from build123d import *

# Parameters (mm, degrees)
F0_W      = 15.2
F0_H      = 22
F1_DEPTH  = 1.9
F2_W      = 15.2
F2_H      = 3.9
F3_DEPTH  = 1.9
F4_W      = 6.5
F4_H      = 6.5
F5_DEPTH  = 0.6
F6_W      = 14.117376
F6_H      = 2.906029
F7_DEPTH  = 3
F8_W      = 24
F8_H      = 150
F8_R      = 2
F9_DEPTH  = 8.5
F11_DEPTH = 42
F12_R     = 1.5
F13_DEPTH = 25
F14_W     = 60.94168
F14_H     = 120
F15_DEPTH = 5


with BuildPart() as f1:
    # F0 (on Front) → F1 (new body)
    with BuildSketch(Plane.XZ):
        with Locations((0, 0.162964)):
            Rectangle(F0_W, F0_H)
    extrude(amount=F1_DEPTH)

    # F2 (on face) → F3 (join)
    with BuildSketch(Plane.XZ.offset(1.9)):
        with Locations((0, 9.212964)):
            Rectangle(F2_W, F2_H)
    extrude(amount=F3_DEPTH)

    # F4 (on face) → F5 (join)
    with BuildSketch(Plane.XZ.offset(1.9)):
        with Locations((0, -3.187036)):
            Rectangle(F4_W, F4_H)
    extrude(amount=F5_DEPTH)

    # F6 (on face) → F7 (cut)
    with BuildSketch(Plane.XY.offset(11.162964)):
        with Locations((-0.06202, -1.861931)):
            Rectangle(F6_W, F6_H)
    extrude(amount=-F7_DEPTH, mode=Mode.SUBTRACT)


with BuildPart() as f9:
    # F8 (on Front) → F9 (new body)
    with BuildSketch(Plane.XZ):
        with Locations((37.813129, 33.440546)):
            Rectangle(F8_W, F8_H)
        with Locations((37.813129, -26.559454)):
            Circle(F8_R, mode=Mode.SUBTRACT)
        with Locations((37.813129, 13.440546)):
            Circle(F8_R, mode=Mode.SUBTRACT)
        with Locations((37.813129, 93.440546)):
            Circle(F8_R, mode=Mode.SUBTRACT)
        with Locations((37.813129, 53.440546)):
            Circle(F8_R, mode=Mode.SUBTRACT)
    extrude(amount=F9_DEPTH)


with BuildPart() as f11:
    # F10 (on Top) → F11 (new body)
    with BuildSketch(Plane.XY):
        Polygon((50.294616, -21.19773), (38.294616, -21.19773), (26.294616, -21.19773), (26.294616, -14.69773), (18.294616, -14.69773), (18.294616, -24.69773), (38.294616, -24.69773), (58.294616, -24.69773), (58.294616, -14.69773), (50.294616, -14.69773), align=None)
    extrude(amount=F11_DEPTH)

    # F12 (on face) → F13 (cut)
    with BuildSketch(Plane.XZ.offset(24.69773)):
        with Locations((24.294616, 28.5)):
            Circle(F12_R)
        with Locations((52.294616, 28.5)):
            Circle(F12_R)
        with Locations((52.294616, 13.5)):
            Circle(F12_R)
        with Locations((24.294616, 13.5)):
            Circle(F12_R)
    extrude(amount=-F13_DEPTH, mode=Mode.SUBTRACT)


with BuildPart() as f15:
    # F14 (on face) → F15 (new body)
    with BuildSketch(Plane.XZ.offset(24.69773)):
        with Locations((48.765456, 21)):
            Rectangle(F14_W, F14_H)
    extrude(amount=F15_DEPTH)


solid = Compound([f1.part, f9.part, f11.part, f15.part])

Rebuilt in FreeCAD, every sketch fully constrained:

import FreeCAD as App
import Part
import Sketcher
from FreeCAD import Vector
Q = App.Units.Quantity

doc = App.newDocument("Part")
body = doc.addObject("PartDesign::Body", "Body")

sketch1 = body.newObject("Sketcher::SketchObject", "Sketch")
sketch1.AttachmentSupport = (doc.getObject("XZ_Plane"), [""])
sketch1.MapMode = "FlatFace"
sketch1.addGeometry(Part.LineSegment(Vector(-7.6, 11.162964, 0), Vector(-7.6, -10.837036, 0)), False)
sketch1.addGeometry(Part.LineSegment(Vector(-7.6, -10.837036, 0), Vector(7.6, -10.837036, 0)), False)
sketch1.addGeometry(Part.LineSegment(Vector(7.6, -10.837036, 0), Vector(7.6, 11.162964, 0)), False)
sketch1.addGeometry(Part.LineSegment(Vector(7.6, 11.162964, 0), Vector(-7.6, 11.162964, 0)), False)
sketch1.addConstraint(Sketcher.Constraint("Coincident", 0, 2, 1, 1))
sketch1.addConstraint(Sketcher.Constraint("Coincident", 1, 2, 2, 1))
sketch1.addConstraint(Sketcher.Constraint("Coincident", 2, 2, 3, 1))
sketch1.addConstraint(Sketcher.Constraint("Coincident", 3, 2, 0, 1))
sketch1.addConstraint(Sketcher.Constraint("Vertical", 0))
sketch1.addConstraint(Sketcher.Constraint("Horizontal", 1))
sketch1.addConstraint(Sketcher.Constraint("Vertical", 2))
sketch1.addConstraint(Sketcher.Constraint("Horizontal", 3))
sketch1.addConstraint(Sketcher.Constraint("DistanceY", 0, 2, 0, 1, Q("22 mm")))
sketch1.addConstraint(Sketcher.Constraint("DistanceX", 1, 1, 1, 2, Q("15.2 mm")))
sketch1.addConstraint(Sketcher.Constraint("DistanceX", 0, 2, -1, 1, Q("7.6 mm")))
sketch1.addConstraint(Sketcher.Constraint("DistanceY", 0, 2, -1, 1, Q("10.837036 mm")))
pad1 = body.newObject("PartDesign::Pad", "Pad")
pad1.Profile = sketch1
pad1.Length = 1.9

sketch2 = body.newObject("Sketcher::SketchObject", "Sketch001")
sketch2.AttachmentSupport = (doc.getObject("XZ_Plane"), [""])
sketch2.MapMode = "FlatFace"
sketch2.AttachmentOffset = App.Placement(Vector(0, 0, 1.9), App.Rotation())
sketch2.addGeometry(Part.LineSegment(Vector(-7.6, 11.162964, 0), Vector(-7.6, 7.262964, 0)), False)
sketch2.addGeometry(Part.LineSegment(Vector(-7.6, 7.262964, 0), Vector(7.6, 7.262964, 0)), False)
sketch2.addGeometry(Part.LineSegment(Vector(7.6, 7.262964, 0), Vector(7.6, 11.162964, 0)), False)
sketch2.addGeometry(Part.LineSegment(Vector(7.6, 11.162964, 0), Vector(-7.6, 11.162964, 0)), False)
sketch2.addConstraint(Sketcher.Constraint("Coincident", 0, 2, 1, 1))
sketch2.addConstraint(Sketcher.Constraint("Coincident", 1, 2, 2, 1))
sketch2.addConstraint(Sketcher.Constraint("Coincident", 2, 2, 3, 1))
sketch2.addConstraint(Sketcher.Constraint("Coincident", 3, 2, 0, 1))
sketch2.addConstraint(Sketcher.Constraint("Vertical", 0))
sketch2.addConstraint(Sketcher.Constraint("Horizontal", 1))
sketch2.addConstraint(Sketcher.Constraint("Vertical", 2))
sketch2.addConstraint(Sketcher.Constraint("Horizontal", 3))
sketch2.addConstraint(Sketcher.Constraint("DistanceX", 1, 1, 1, 2, Q("15.2 mm")))
sketch2.addConstraint(Sketcher.Constraint("DistanceY", 0, 2, 0, 1, Q("3.9 mm")))
sketch2.addConstraint(Sketcher.Constraint("DistanceX", 0, 2, -1, 1, Q("7.6 mm")))
sketch2.addConstraint(Sketcher.Constraint("DistanceY", -1, 1, 0, 2, Q("7.262964 mm")))
pad2 = body.newObject("PartDesign::Pad", "Pad001")
pad2.Profile = sketch2
pad2.Length = 1.9

sketch3 = body.newObject("Sketcher::SketchObject", "Sketch002")
sketch3.AttachmentSupport = (doc.getObject("XZ_Plane"), [""])
sketch3.MapMode = "FlatFace"
sketch3.AttachmentOffset = App.Placement(Vector(0, 0, 1.9), App.Rotation())
sketch3.addGeometry(Part.LineSegment(Vector(-3.25, 0.062964, 0), Vector(-3.25, -6.437036, 0)), False)
sketch3.addGeometry(Part.LineSegment(Vector(-3.25, -6.437036, 0), Vector(3.25, -6.437036, 0)), False)
sketch3.addGeometry(Part.LineSegment(Vector(3.25, -6.437036, 0), Vector(3.25, 0.062964, 0)), False)
sketch3.addGeometry(Part.LineSegment(Vector(3.25, 0.062964, 0), Vector(-3.25, 0.062964, 0)), False)
sketch3.addConstraint(Sketcher.Constraint("Coincident", 0, 2, 1, 1))
sketch3.addConstraint(Sketcher.Constraint("Coincident", 1, 2, 2, 1))
sketch3.addConstraint(Sketcher.Constraint("Coincident", 2, 2, 3, 1))
sketch3.addConstraint(Sketcher.Constraint("Coincident", 3, 2, 0, 1))
sketch3.addConstraint(Sketcher.Constraint("Vertical", 0))
sketch3.addConstraint(Sketcher.Constraint("Horizontal", 1))
sketch3.addConstraint(Sketcher.Constraint("Vertical", 2))
sketch3.addConstraint(Sketcher.Constraint("Horizontal", 3))
sketch3.addConstraint(Sketcher.Constraint("Equal", 3, 0))
sketch3.addConstraint(Sketcher.Constraint("DistanceX", 1, 1, 1, 2, Q("6.5 mm")))
sketch3.addConstraint(Sketcher.Constraint("DistanceX", 0, 2, -1, 1, Q("3.25 mm")))
sketch3.addConstraint(Sketcher.Constraint("DistanceY", 0, 2, -1, 1, Q("6.437036 mm")))
pad3 = body.newObject("PartDesign::Pad", "Pad002")
pad3.Profile = sketch3
pad3.Length = 0.6

sketch4 = body.newObject("Sketcher::SketchObject", "Sketch003")
sketch4.AttachmentSupport = (doc.getObject("XY_Plane"), [""])
sketch4.MapMode = "FlatFace"
sketch4.AttachmentOffset = App.Placement(Vector(0, 0, 11.162964), App.Rotation())
sketch4.addGeometry(Part.LineSegment(Vector(-7.120708, -0.408917, 0), Vector(-7.120708, -3.314945, 0)), False)
sketch4.addGeometry(Part.LineSegment(Vector(-7.120708, -3.314945, 0), Vector(6.996668, -3.314945, 0)), False)
sketch4.addGeometry(Part.LineSegment(Vector(6.996668, -3.314945, 0), Vector(6.996668, -0.408917, 0)), False)
sketch4.addGeometry(Part.LineSegment(Vector(6.996668, -0.408917, 0), Vector(-7.120708, -0.408917, 0)), False)
sketch4.addConstraint(Sketcher.Constraint("Coincident", 0, 2, 1, 1))
sketch4.addConstraint(Sketcher.Constraint("Coincident", 1, 2, 2, 1))
sketch4.addConstraint(Sketcher.Constraint("Coincident", 2, 2, 3, 1))
sketch4.addConstraint(Sketcher.Constraint("Coincident", 3, 2, 0, 1))
sketch4.addConstraint(Sketcher.Constraint("Vertical", 0))
sketch4.addConstraint(Sketcher.Constraint("Horizontal", 1))
sketch4.addConstraint(Sketcher.Constraint("Vertical", 2))
sketch4.addConstraint(Sketcher.Constraint("Horizontal", 3))
sketch4.addConstraint(Sketcher.Constraint("DistanceY", 0, 2, 0, 1, Q("2.906029 mm")))
sketch4.addConstraint(Sketcher.Constraint("DistanceX", 1, 1, 1, 2, Q("14.117376 mm")))
sketch4.addConstraint(Sketcher.Constraint("DistanceX", 0, 2, -1, 1, Q("7.120708 mm")))
sketch4.addConstraint(Sketcher.Constraint("DistanceY", 0, 2, -1, 1, Q("3.314945 mm")))
pocket1 = body.newObject("PartDesign::Pocket", "Pocket")
pocket1.Profile = sketch4
pocket1.Length = 3
body2 = doc.addObject("PartDesign::Body", "Body001")

sketch5 = body2.newObject("Sketcher::SketchObject", "Sketch004")
sketch5.AttachmentSupport = (doc.getObject("XZ_Plane001"), [""])
sketch5.MapMode = "FlatFace"
sketch5.addGeometry(Part.LineSegment(Vector(25.813129, 108.440546, 0), Vector(25.813129, -41.559454, 0)), False)
sketch5.addGeometry(Part.LineSegment(Vector(25.813129, -41.559454, 0), Vector(49.813129, -41.559454, 0)), False)
sketch5.addGeometry(Part.LineSegment(Vector(49.813129, -41.559454, 0), Vector(49.813129, 108.440546, 0)), False)
sketch5.addGeometry(Part.LineSegment(Vector(49.813129, 108.440546, 0), Vector(25.813129, 108.440546, 0)), False)
sketch5.addGeometry(Part.Circle(Vector(37.813129, -26.559454, 0), Vector(0, 0, 1), 2), False)
sketch5.addGeometry(Part.Circle(Vector(37.813129, 13.440546, 0), Vector(0, 0, 1), 2), False)
sketch5.addGeometry(Part.Circle(Vector(37.813129, 53.440546, 0), Vector(0, 0, 1), 2), False)
sketch5.addGeometry(Part.Circle(Vector(37.813129, 93.440546, 0), Vector(0, 0, 1), 2), False)
sketch5.addConstraint(Sketcher.Constraint("Coincident", 0, 2, 1, 1))
sketch5.addConstraint(Sketcher.Constraint("Coincident", 1, 2, 2, 1))
sketch5.addConstraint(Sketcher.Constraint("Coincident", 2, 2, 3, 1))
sketch5.addConstraint(Sketcher.Constraint("Coincident", 3, 2, 0, 1))
sketch5.addConstraint(Sketcher.Constraint("Vertical", 0))
sketch5.addConstraint(Sketcher.Constraint("Horizontal", 1))
sketch5.addConstraint(Sketcher.Constraint("Vertical", 2))
sketch5.addConstraint(Sketcher.Constraint("Horizontal", 3))
sketch5.addConstraint(Sketcher.Constraint("Equal", 4, 5))
sketch5.addConstraint(Sketcher.Constraint("Equal", 5, 6))
sketch5.addConstraint(Sketcher.Constraint("Equal", 6, 7))
sketch5.addConstraint(Sketcher.Constraint("Vertical", 4, 3, 5, 3))
sketch5.addConstraint(Sketcher.Constraint("Vertical", 5, 3, 6, 3))
sketch5.addConstraint(Sketcher.Constraint("Vertical", 6, 3, 7, 3))
sketch5.addConstraint(Sketcher.Constraint("Diameter", 4, Q("4 mm")))
sketch5.addConstraint(Sketcher.Constraint("DistanceX", 1, 1, 1, 2, Q("24 mm")))
sketch5.addConstraint(Sketcher.Constraint("DistanceY", 0, 2, 0, 1, Q("150 mm")))
sketch5.addConstraint(Sketcher.Constraint("DistanceY", 4, 3, 5, 3, Q("40 mm")))
sketch5.addConstraint(Sketcher.Constraint("DistanceY", 5, 3, 6, 3, Q("40 mm")))
sketch5.addConstraint(Sketcher.Constraint("DistanceY", 6, 3, 7, 3, Q("40 mm")))
sketch5.addConstraint(Sketcher.Constraint("DistanceX", 0, 2, 4, 3, Q("12 mm")))
sketch5.addConstraint(Sketcher.Constraint("DistanceY", 0, 2, 4, 3, Q("15 mm")))
sketch5.addConstraint(Sketcher.Constraint("DistanceX", -1, 1, 4, 3, Q("37.813129 mm")))
sketch5.addConstraint(Sketcher.Constraint("DistanceY", 4, 3, -1, 1, Q("26.559454 mm")))
pad4 = body2.newObject("PartDesign::Pad", "Pad003")
pad4.Profile = sketch5
pad4.Length = 8.5
body3 = doc.addObject("PartDesign::Body", "Body002")

sketch6 = body3.newObject("Sketcher::SketchObject", "Sketch005")
sketch6.AttachmentSupport = (doc.getObject("XY_Plane002"), [""])
sketch6.MapMode = "FlatFace"
sketch6.addGeometry(Part.LineSegment(Vector(50.294616, -21.19773, 0), Vector(26.294616, -21.19773, 0)), False)
sketch6.addGeometry(Part.LineSegment(Vector(26.294616, -21.19773, 0), Vector(26.294616, -14.69773, 0)), False)
sketch6.addGeometry(Part.LineSegment(Vector(26.294616, -14.69773, 0), Vector(18.294616, -14.69773, 0)), False)
sketch6.addGeometry(Part.LineSegment(Vector(18.294616, -14.69773, 0), Vector(18.294616, -24.69773, 0)), False)
sketch6.addGeometry(Part.LineSegment(Vector(18.294616, -24.69773, 0), Vector(58.294616, -24.69773, 0)), False)
sketch6.addGeometry(Part.LineSegment(Vector(58.294616, -24.69773, 0), Vector(58.294616, -14.69773, 0)), False)
sketch6.addGeometry(Part.LineSegment(Vector(58.294616, -14.69773, 0), Vector(50.294616, -14.69773, 0)), False)
sketch6.addGeometry(Part.LineSegment(Vector(50.294616, -14.69773, 0), Vector(50.294616, -21.19773, 0)), False)
sketch6.addConstraint(Sketcher.Constraint("Coincident", 0, 2, 1, 1))
sketch6.addConstraint(Sketcher.Constraint("Coincident", 1, 2, 2, 1))
sketch6.addConstraint(Sketcher.Constraint("Coincident", 2, 2, 3, 1))
sketch6.addConstraint(Sketcher.Constraint("Coincident", 3, 2, 4, 1))
sketch6.addConstraint(Sketcher.Constraint("Coincident", 4, 2, 5, 1))
sketch6.addConstraint(Sketcher.Constraint("Coincident", 5, 2, 6, 1))
sketch6.addConstraint(Sketcher.Constraint("Coincident", 6, 2, 7, 1))
sketch6.addConstraint(Sketcher.Constraint("Coincident", 7, 2, 0, 1))
sketch6.addConstraint(Sketcher.Constraint("Horizontal", 0))
sketch6.addConstraint(Sketcher.Constraint("Vertical", 1))
sketch6.addConstraint(Sketcher.Constraint("Horizontal", 2))
sketch6.addConstraint(Sketcher.Constraint("Vertical", 3))
sketch6.addConstraint(Sketcher.Constraint("Horizontal", 4))
sketch6.addConstraint(Sketcher.Constraint("Vertical", 5))
sketch6.addConstraint(Sketcher.Constraint("Horizontal", 6))
sketch6.addConstraint(Sketcher.Constraint("Vertical", 7))
sketch6.addConstraint(Sketcher.Constraint("Horizontal", 2, 2, 5, 2))
sketch6.addConstraint(Sketcher.Constraint("Equal", 2, 6))
sketch6.addConstraint(Sketcher.Constraint("DistanceX", 0, 2, 0, 1, Q("24 mm")))
sketch6.addConstraint(Sketcher.Constraint("DistanceX", 2, 2, 2, 1, Q("8 mm")))
sketch6.addConstraint(Sketcher.Constraint("DistanceY", 3, 2, 3, 1, Q("10 mm")))
sketch6.addConstraint(Sketcher.Constraint("DistanceY", 1, 1, 1, 2, Q("6.5 mm")))
sketch6.addConstraint(Sketcher.Constraint("DistanceY", 0, 2, -1, 1, Q("21.19773 mm")))
sketch6.addConstraint(Sketcher.Constraint("DistanceX", -1, 1, 0, 2, Q("26.294616 mm")))
pad5 = body3.newObject("PartDesign::Pad", "Pad004")
pad5.Profile = sketch6
pad5.Length = 42

sketch7 = body3.newObject("Sketcher::SketchObject", "Sketch006")
sketch7.AttachmentSupport = (doc.getObject("XZ_Plane002"), [""])
sketch7.MapMode = "FlatFace"
sketch7.AttachmentOffset = App.Placement(Vector(0, 0, 24.69773), App.Rotation())
sketch7.addGeometry(Part.Circle(Vector(24.294616, 28.5, 0), Vector(0, 0, 1), 1.5), False)
sketch7.addGeometry(Part.Circle(Vector(52.294616, 28.5, 0), Vector(0, 0, 1), 1.5), False)
sketch7.addGeometry(Part.Circle(Vector(52.294616, 13.5, 0), Vector(0, 0, 1), 1.5), False)
sketch7.addGeometry(Part.Circle(Vector(24.294616, 13.5, 0), Vector(0, 0, 1), 1.5), False)
sketch7.addConstraint(Sketcher.Constraint("Equal", 0, 1))
sketch7.addConstraint(Sketcher.Constraint("Equal", 1, 2))
sketch7.addConstraint(Sketcher.Constraint("Equal", 2, 3))
sketch7.addConstraint(Sketcher.Constraint("Horizontal", 0, 3, 1, 3))
sketch7.addConstraint(Sketcher.Constraint("Horizontal", 2, 3, 3, 3))
sketch7.addConstraint(Sketcher.Constraint("Vertical", 1, 3, 2, 3))
sketch7.addConstraint(Sketcher.Constraint("Vertical", 0, 3, 3, 3))
sketch7.addConstraint(Sketcher.Constraint("Diameter", 0, Q("3 mm")))
sketch7.addConstraint(Sketcher.Constraint("DistanceX", 0, 3, 1, 3, Q("28 mm")))
sketch7.addConstraint(Sketcher.Constraint("DistanceY", 2, 3, 1, 3, Q("15 mm")))
sketch7.addConstraint(Sketcher.Constraint("DistanceY", -1, 1, 0, 3, Q("28.5 mm")))
sketch7.addConstraint(Sketcher.Constraint("DistanceX", -1, 1, 0, 3, Q("24.294616 mm")))
pocket2 = body3.newObject("PartDesign::Pocket", "Pocket001")
pocket2.Profile = sketch7
pocket2.Length = 25
body4 = doc.addObject("PartDesign::Body", "Body003")

sketch8 = body4.newObject("Sketcher::SketchObject", "Sketch007")
sketch8.AttachmentSupport = (doc.getObject("XZ_Plane003"), [""])
sketch8.MapMode = "FlatFace"
sketch8.AttachmentOffset = App.Placement(Vector(0, 0, 24.69773), App.Rotation())
sketch8.addGeometry(Part.LineSegment(Vector(18.294616, 81, 0), Vector(18.294616, -39, 0)), False)
sketch8.addGeometry(Part.LineSegment(Vector(18.294616, -39, 0), Vector(79.236296, -39, 0)), False)
sketch8.addGeometry(Part.LineSegment(Vector(79.236296, -39, 0), Vector(79.236296, 81, 0)), False)
sketch8.addGeometry(Part.LineSegment(Vector(79.236296, 81, 0), Vector(18.294616, 81, 0)), False)
sketch8.addConstraint(Sketcher.Constraint("Coincident", 0, 2, 1, 1))
sketch8.addConstraint(Sketcher.Constraint("Coincident", 1, 2, 2, 1))
sketch8.addConstraint(Sketcher.Constraint("Coincident", 2, 2, 3, 1))
sketch8.addConstraint(Sketcher.Constraint("Coincident", 3, 2, 0, 1))
sketch8.addConstraint(Sketcher.Constraint("Vertical", 0))
sketch8.addConstraint(Sketcher.Constraint("Horizontal", 1))
sketch8.addConstraint(Sketcher.Constraint("Vertical", 2))
sketch8.addConstraint(Sketcher.Constraint("Horizontal", 3))
sketch8.addConstraint(Sketcher.Constraint("DistanceY", 0, 2, 0, 1, Q("120 mm")))
sketch8.addConstraint(Sketcher.Constraint("DistanceY", 0, 2, -1, 1, Q("39 mm")))
sketch8.addConstraint(Sketcher.Constraint("DistanceX", 1, 1, 1, 2, Q("60.94168 mm")))
sketch8.addConstraint(Sketcher.Constraint("DistanceX", -1, 1, 0, 2, Q("18.294616 mm")))
pad6 = body4.newObject("PartDesign::Pad", "Pad005")
pad6.Profile = sketch8
pad6.Length = 5

doc.recompute()
